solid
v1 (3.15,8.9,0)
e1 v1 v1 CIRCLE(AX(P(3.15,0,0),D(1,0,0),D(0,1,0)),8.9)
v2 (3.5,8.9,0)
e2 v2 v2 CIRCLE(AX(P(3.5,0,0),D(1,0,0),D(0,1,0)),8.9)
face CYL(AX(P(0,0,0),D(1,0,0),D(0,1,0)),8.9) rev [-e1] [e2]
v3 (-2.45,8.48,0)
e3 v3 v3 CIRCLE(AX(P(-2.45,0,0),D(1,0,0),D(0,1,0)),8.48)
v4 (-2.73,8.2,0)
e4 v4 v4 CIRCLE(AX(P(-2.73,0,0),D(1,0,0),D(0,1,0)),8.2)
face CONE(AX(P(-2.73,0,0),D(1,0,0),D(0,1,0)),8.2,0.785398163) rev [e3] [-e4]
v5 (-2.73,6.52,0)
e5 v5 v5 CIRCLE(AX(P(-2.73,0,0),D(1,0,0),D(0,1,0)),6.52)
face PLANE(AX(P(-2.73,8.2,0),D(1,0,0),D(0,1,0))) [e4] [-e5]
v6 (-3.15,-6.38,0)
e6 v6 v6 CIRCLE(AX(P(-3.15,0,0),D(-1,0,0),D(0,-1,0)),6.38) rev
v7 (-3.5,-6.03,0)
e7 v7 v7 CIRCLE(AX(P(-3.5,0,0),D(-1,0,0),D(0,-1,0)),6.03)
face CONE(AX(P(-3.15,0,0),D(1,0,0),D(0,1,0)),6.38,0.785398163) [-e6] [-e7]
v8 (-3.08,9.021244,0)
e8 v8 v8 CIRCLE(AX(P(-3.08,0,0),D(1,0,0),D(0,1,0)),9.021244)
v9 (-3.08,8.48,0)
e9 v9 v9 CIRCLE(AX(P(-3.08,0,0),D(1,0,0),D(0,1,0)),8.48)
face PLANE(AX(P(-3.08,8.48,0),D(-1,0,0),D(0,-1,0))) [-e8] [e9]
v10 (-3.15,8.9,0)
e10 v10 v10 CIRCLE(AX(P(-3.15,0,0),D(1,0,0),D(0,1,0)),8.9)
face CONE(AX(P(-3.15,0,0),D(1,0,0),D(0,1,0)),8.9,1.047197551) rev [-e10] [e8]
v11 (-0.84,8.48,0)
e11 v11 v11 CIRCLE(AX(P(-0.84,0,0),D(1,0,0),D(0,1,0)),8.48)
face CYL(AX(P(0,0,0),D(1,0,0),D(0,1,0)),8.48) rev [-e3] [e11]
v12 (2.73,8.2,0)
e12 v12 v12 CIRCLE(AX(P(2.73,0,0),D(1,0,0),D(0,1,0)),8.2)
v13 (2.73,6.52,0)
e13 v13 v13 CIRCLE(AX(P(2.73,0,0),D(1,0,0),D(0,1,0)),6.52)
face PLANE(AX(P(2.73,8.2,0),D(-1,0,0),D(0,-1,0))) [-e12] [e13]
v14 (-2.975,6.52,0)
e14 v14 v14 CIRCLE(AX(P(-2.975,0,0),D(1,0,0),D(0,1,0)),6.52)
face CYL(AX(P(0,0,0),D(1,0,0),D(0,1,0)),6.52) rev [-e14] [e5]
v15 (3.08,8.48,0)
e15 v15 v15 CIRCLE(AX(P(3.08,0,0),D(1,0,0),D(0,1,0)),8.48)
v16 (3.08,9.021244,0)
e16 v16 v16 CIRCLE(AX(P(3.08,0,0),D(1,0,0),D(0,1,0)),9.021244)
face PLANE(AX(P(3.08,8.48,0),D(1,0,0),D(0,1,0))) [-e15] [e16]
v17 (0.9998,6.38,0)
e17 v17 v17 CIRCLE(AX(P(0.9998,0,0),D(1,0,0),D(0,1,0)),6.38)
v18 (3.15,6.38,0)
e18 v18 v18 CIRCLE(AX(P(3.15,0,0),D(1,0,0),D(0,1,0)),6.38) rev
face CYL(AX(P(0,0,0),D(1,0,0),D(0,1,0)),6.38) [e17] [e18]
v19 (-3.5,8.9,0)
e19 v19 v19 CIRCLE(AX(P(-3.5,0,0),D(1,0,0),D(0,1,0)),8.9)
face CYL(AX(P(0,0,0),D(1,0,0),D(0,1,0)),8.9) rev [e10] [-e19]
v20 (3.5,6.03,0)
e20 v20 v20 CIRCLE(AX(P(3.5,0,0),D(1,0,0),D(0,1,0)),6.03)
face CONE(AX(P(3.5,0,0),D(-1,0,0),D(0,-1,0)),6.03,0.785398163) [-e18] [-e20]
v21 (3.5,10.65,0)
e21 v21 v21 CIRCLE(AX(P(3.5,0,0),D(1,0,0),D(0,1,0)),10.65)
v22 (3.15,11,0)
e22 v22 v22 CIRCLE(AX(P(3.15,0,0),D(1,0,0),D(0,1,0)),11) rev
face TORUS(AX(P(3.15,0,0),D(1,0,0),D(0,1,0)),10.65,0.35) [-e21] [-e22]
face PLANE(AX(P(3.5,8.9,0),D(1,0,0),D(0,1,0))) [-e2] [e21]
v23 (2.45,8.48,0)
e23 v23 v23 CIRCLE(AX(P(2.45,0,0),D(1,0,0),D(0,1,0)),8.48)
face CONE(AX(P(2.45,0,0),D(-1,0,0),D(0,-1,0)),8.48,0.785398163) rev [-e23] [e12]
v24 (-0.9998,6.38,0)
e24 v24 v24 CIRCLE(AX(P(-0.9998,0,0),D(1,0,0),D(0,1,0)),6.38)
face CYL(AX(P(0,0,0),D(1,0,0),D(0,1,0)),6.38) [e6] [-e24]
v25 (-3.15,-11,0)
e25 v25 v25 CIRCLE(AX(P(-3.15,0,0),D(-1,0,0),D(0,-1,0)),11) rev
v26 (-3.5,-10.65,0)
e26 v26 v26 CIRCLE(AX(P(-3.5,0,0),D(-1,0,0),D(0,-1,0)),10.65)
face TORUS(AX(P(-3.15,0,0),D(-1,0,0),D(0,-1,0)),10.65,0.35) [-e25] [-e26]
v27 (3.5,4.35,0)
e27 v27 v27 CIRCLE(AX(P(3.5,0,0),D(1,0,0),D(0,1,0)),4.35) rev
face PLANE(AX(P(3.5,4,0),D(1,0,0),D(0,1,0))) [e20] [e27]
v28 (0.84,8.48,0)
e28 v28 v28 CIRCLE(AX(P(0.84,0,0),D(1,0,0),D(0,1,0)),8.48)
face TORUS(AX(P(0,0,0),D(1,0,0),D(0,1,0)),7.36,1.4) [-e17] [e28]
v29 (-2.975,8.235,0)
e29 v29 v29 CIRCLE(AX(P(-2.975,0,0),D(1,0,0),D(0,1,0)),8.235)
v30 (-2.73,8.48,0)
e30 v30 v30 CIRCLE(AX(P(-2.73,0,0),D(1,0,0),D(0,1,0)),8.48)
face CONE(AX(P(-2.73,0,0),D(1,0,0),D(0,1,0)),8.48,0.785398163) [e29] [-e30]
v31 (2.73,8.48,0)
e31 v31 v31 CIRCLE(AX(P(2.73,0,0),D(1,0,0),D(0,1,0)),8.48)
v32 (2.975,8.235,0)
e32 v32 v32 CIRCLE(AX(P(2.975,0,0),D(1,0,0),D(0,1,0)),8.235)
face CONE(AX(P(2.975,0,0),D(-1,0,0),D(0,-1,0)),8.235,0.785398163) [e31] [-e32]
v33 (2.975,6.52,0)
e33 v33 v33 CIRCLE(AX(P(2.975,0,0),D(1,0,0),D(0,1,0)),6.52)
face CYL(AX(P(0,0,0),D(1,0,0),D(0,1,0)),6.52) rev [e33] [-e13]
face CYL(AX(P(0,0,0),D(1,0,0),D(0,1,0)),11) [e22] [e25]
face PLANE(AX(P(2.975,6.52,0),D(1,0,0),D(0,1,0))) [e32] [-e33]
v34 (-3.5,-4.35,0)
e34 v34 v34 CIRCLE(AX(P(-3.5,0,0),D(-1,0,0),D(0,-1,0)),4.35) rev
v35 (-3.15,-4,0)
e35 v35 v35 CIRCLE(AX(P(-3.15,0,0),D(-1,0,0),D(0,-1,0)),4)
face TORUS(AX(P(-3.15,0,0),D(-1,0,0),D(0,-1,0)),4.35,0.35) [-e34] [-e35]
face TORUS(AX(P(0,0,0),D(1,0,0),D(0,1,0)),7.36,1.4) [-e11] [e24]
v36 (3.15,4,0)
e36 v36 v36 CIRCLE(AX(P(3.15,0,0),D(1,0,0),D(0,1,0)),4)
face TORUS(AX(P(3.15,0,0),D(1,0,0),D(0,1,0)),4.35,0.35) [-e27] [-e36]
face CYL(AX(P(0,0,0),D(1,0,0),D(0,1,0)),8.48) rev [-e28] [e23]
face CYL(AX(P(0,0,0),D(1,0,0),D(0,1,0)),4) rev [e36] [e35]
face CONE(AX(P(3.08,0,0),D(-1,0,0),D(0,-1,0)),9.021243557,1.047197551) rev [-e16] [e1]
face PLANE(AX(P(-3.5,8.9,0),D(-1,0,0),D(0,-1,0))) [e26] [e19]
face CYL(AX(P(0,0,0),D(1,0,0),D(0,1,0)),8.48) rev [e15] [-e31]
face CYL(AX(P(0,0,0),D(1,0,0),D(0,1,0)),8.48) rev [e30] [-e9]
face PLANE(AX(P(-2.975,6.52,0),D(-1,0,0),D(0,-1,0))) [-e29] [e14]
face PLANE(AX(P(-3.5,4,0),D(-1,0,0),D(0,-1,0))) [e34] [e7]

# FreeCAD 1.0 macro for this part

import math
import FreeCAD as App
import Part
import Sketcher
from FreeCAD import Vector
Q = App.Units.Quantity


def edges_at(feature, points):
    """Names of the edges that pass closest to the given points."""
    edges = feature.Shape.Edges
    near = lambda p: min(range(len(edges)), key=lambda i: edges[i].distToShape(Part.Vertex(*p))[0])
    return sorted({f"Edge{near(p) + 1}" for p in points})

doc = App.newDocument("Part")
body = doc.addObject("PartDesign::Body", "Body")

# Sketch on XY plane
sketch1 = body.newObject("Sketcher::SketchObject", "Sketch")
sketch1.AttachmentSupport = (doc.getObject("XY_Plane"), [""])
sketch1.MapMode = "FlatFace"
sketch1.addGeometry([
    Part.LineSegment(Vector(-3.5, 6.38, 0), Vector(-3.5, 4, 0)),  # 0
    Part.LineSegment(Vector(-3.5, 4, 0), Vector(3.5, 4, 0)),  # 1
    Part.LineSegment(Vector(3.5, 4, 0), Vector(3.5, 6.38, 0)),  # 2
    Part.LineSegment(Vector(3.5, 6.38, 0), Vector(0.9998, 6.38, 0)),  # 3
    Part.ArcOfCircle(Part.Circle(Vector(0, 7.36, 0), Vector(0, 0, 1), 1.4), math.radians(-44.427004), math.radians(53.130102)),  # 4
    Part.LineSegment(Vector(0.84, 8.48, 0), Vector(2.45, 8.48, 0)),  # 5
    Part.LineSegment(Vector(2.45, 8.48, 0), Vector(2.73, 8.2, 0)),  # 6
    Part.LineSegment(Vector(2.73, 8.2, 0), Vector(2.73, 6.52, 0)),  # 7
    Part.LineSegment(Vector(2.73, 6.52, 0), Vector(2.975, 6.52, 0)),  # 8
    Part.LineSegment(Vector(2.975, 6.52, 0), Vector(2.975, 8.235, 0)),  # 9
    Part.LineSegment(Vector(2.975, 8.235, 0), Vector(2.73, 8.48, 0)),  # 10
    Part.LineSegment(Vector(2.73, 8.48, 0), Vector(3.08, 8.48, 0)),  # 11
    Part.LineSegment(Vector(3.08, 8.48, 0), Vector(3.08, 9.021244, 0)),  # 12
    Part.LineSegment(Vector(3.08, 9.021244, 0), Vector(3.15, 8.9, 0)),  # 13
    Part.LineSegment(Vector(3.15, 8.9, 0), Vector(3.5, 8.9, 0)),  # 14
    Part.LineSegment(Vector(3.5, 8.9, 0), Vector(3.5, 11, 0)),  # 15
    Part.LineSegment(Vector(3.5, 11, 0), Vector(-3.5, 11, 0)),  # 16
    Part.LineSegment(Vector(-3.5, 11, 0), Vector(-3.5, 8.9, 0)),  # 17
    Part.LineSegment(Vector(-3.5, 8.9, 0), Vector(-3.15, 8.9, 0)),  # 18
    Part.LineSegment(Vector(-3.15, 8.9, 0), Vector(-3.08, 9.021244, 0)),  # 19
    Part.LineSegment(Vector(-3.08, 9.021244, 0), Vector(-3.08, 8.48, 0)),  # 20
    Part.LineSegment(Vector(-3.08, 8.48, 0), Vector(-2.73, 8.48, 0)),  # 21
    Part.LineSegment(Vector(-2.73, 8.48, 0), Vector(-2.975, 8.235, 0)),  # 22
    Part.LineSegment(Vector(-2.975, 8.235, 0), Vector(-2.975, 6.52, 0)),  # 23
    Part.LineSegment(Vector(-2.975, 6.52, 0), Vector(-2.73, 6.52, 0)),  # 24
    Part.LineSegment(Vector(-2.73, 6.52, 0), Vector(-2.73, 8.2, 0)),  # 25
    Part.LineSegment(Vector(-2.73, 8.2, 0), Vector(-2.45, 8.48, 0)),  # 26
    Part.LineSegment(Vector(-2.45, 8.48, 0), Vector(-0.84, 8.48, 0)),  # 27
    Part.ArcOfCircle(Part.Circle(Vector(0, 7.36, 0), Vector(0, 0, 1), 1.4), math.radians(126.869898), math.radians(224.427004)),  # 28
    Part.LineSegment(Vector(-0.9998, 6.38, 0), Vector(-3.5, 6.38, 0)),  # 29
], False)
sketch1.addConstraint([
    Sketcher.Constraint("Coincident", 0, 2, 1, 1),
    Sketcher.Constraint("Coincident", 1, 2, 2, 1),
    Sketcher.Constraint("Coincident", 2, 2, 3, 1),
    Sketcher.Constraint("Coincident", 3, 2, 4, 1),
    Sketcher.Constraint("Coincident", 4, 2, 5, 1),
    Sketcher.Constraint("Coincident", 5, 2, 6, 1),
    Sketcher.Constraint("Coincident", 6, 2, 7, 1),
    Sketcher.Constraint("Coincident", 7, 2, 8, 1),
    Sketcher.Constraint("Coincident", 8, 2, 9, 1),
    Sketcher.Constraint("Coincident", 9, 2, 10, 1),
    Sketcher.Constraint("Coincident", 10, 2, 11, 1),
    Sketcher.Constraint("Coincident", 11, 2, 12, 1),
    Sketcher.Constraint("Coincident", 12, 2, 13, 1),
    Sketcher.Constraint("Coincident", 13, 2, 14, 1),
    Sketcher.Constraint("Coincident", 14, 2, 15, 1),
    Sketcher.Constraint("Coincident", 15, 2, 16, 1),
    Sketcher.Constraint("Coincident", 16, 2, 17, 1),
    Sketcher.Constraint("Coincident", 17, 2, 18, 1),
    Sketcher.Constraint("Coincident", 18, 2, 19, 1),
    Sketcher.Constraint("Coincident", 19, 2, 20, 1),
    Sketcher.Constraint("Coincident", 20, 2, 21, 1),
    Sketcher.Constraint("Coincident", 21, 2, 22, 1),
    Sketcher.Constraint("Coincident", 22, 2, 23, 1),
    Sketcher.Constraint("Coincident", 23, 2, 24, 1),
    Sketcher.Constraint("Coincident", 24, 2, 25, 1),
    Sketcher.Constraint("Coincident", 25, 2, 26, 1),
    Sketcher.Constraint("Coincident", 26, 2, 27, 1),
    Sketcher.Constraint("Coincident", 27, 2, 28, 1),
    Sketcher.Constraint("Coincident", 28, 2, 29, 1),
    Sketcher.Constraint("Coincident", 29, 2, 0, 1),
    Sketcher.Constraint("Vertical", 0),
    Sketcher.Constraint("Horizontal", 1),
    Sketcher.Constraint("Vertical", 2),
    Sketcher.Constraint("Horizontal", 3),
    Sketcher.Constraint("Horizontal", 5),
    Sketcher.Constraint("Vertical", 7),
    Sketcher.Constraint("Horizontal", 8),
    Sketcher.Constraint("Vertical", 9),
    Sketcher.Constraint("Horizontal", 11),
    Sketcher.Constraint("Vertical", 12),
    Sketcher.Constraint("Horizontal", 14),
    Sketcher.Constraint("Vertical", 15),
    Sketcher.Constraint("Horizontal", 16),
    Sketcher.Constraint("Vertical", 17),
    Sketcher.Constraint("Horizontal", 18),
    Sketcher.Constraint("Vertical", 20),
    Sketcher.Constraint("Horizontal", 21),
    Sketcher.Constraint("Vertical", 23),
    Sketcher.Constraint("Horizontal", 24),
    Sketcher.Constraint("Vertical", 25),
    Sketcher.Constraint("Horizontal", 27),
    Sketcher.Constraint("Horizontal", 29),
    Sketcher.Constraint("Coincident", 28, 3, 4, 3),
    Sketcher.Constraint("Equal", 4, 28),
    Sketcher.Constraint("Symmetric", 14, 2, 17, 2, -2),
    Sketcher.Constraint("Symmetric", 12, 2, 19, 2, -2),
    Sketcher.Constraint("Symmetric", 10, 2, 21, 2, -2),
    Sketcher.Constraint("Symmetric", 9, 2, 22, 2, -2),
    Sketcher.Constraint("Symmetric", 7, 2, 24, 2, -2),
    Sketcher.Constraint("Symmetric", 5, 2, 26, 2, -2),
    Sketcher.Constraint("Symmetric", 3, 2, 28, 2, -2),
    Sketcher.Constraint("Parallel", 6, 10),
    Sketcher.Constraint("Perpendicular", 10, 22),
    Sketcher.Constraint("Parallel", 22, 26),
    Sketcher.Constraint("Horizontal", 5, 2, 10, 2),
    Sketcher.Constraint("Vertical", 7, 2, 10, 2),
    Sketcher.Constraint("Vertical", 2, 2, 14, 2),
    Sketcher.Constraint("Vertical", 0, 2, 16, 2),
    Sketcher.Constraint("Equal", 11, 14),
    Sketcher.Constraint("Equal", 14, 18),
    Sketcher.Constraint("Radius", 4, Q("1.4 mm")),
    Sketcher.Constraint("DistanceX", 1, 1, 1, 2, Q("7 mm")),
    Sketcher.Constraint("Angle", 13, Q("-60 deg")),
    Sketcher.Constraint("DistanceY", 15, 1, 15, 2, Q("2.1 mm")),
    Sketcher.Constraint("DistanceY", -1, 1, 0, 2, Q("4 mm")),
    Sketcher.Constraint("DistanceY", -1, 1, 15, 2, Q("11 mm")),
    Sketcher.Constraint("DistanceX", 5, 1, 5, 2, Q("1.61 mm")),
    Sketcher.Constraint("DistanceX", 11, 1, 11, 2, Q("0.35 mm")),
    Sketcher.Constraint("DistanceY", 0, 2, 0, 1, Q("2.38 mm")),
    Sketcher.Constraint("DistanceY", 7, 2, 7, 1, Q("1.68 mm")),
    Sketcher.Constraint("DistanceY", -1, 1, 6, 2, Q("8.2 mm")),
    Sketcher.Constraint("DistanceY", 3, 2, 4, 2, Q("2.1 mm")),
    Sketcher.Constraint("DistanceX", 5, 2, 13, 2, Q("0.7 mm")),
    Sketcher.Constraint("DistanceX", 8, 1, 8, 2, Q("0.245 mm")),
])
revolution = body.newObject("PartDesign::Revolution", "Revolution")
revolution.Profile = sketch1
revolution.ReferenceAxis = (sketch1, ["H_Axis"])
revolution.Angle = 360
doc.recompute()

fillet = body.newObject("PartDesign::Fillet", "Fillet")
fillet.Base = (revolution, edges_at(revolution, [
    (3.5, -4, 0),
    (-3.5, -4, 0),
    (-3.5, -11, 0),
    (3.5, -11, 0),
]))
fillet.Radius = 0.35
doc.recompute()

chamfer = body.newObject("PartDesign::Chamfer", "Chamfer")
chamfer.Base = (fillet, edges_at(fillet, [(-3.5, -6.38, 0), (3.5, -6.38, 0)]))
chamfer.Size = 0.35

doc.recompute()
